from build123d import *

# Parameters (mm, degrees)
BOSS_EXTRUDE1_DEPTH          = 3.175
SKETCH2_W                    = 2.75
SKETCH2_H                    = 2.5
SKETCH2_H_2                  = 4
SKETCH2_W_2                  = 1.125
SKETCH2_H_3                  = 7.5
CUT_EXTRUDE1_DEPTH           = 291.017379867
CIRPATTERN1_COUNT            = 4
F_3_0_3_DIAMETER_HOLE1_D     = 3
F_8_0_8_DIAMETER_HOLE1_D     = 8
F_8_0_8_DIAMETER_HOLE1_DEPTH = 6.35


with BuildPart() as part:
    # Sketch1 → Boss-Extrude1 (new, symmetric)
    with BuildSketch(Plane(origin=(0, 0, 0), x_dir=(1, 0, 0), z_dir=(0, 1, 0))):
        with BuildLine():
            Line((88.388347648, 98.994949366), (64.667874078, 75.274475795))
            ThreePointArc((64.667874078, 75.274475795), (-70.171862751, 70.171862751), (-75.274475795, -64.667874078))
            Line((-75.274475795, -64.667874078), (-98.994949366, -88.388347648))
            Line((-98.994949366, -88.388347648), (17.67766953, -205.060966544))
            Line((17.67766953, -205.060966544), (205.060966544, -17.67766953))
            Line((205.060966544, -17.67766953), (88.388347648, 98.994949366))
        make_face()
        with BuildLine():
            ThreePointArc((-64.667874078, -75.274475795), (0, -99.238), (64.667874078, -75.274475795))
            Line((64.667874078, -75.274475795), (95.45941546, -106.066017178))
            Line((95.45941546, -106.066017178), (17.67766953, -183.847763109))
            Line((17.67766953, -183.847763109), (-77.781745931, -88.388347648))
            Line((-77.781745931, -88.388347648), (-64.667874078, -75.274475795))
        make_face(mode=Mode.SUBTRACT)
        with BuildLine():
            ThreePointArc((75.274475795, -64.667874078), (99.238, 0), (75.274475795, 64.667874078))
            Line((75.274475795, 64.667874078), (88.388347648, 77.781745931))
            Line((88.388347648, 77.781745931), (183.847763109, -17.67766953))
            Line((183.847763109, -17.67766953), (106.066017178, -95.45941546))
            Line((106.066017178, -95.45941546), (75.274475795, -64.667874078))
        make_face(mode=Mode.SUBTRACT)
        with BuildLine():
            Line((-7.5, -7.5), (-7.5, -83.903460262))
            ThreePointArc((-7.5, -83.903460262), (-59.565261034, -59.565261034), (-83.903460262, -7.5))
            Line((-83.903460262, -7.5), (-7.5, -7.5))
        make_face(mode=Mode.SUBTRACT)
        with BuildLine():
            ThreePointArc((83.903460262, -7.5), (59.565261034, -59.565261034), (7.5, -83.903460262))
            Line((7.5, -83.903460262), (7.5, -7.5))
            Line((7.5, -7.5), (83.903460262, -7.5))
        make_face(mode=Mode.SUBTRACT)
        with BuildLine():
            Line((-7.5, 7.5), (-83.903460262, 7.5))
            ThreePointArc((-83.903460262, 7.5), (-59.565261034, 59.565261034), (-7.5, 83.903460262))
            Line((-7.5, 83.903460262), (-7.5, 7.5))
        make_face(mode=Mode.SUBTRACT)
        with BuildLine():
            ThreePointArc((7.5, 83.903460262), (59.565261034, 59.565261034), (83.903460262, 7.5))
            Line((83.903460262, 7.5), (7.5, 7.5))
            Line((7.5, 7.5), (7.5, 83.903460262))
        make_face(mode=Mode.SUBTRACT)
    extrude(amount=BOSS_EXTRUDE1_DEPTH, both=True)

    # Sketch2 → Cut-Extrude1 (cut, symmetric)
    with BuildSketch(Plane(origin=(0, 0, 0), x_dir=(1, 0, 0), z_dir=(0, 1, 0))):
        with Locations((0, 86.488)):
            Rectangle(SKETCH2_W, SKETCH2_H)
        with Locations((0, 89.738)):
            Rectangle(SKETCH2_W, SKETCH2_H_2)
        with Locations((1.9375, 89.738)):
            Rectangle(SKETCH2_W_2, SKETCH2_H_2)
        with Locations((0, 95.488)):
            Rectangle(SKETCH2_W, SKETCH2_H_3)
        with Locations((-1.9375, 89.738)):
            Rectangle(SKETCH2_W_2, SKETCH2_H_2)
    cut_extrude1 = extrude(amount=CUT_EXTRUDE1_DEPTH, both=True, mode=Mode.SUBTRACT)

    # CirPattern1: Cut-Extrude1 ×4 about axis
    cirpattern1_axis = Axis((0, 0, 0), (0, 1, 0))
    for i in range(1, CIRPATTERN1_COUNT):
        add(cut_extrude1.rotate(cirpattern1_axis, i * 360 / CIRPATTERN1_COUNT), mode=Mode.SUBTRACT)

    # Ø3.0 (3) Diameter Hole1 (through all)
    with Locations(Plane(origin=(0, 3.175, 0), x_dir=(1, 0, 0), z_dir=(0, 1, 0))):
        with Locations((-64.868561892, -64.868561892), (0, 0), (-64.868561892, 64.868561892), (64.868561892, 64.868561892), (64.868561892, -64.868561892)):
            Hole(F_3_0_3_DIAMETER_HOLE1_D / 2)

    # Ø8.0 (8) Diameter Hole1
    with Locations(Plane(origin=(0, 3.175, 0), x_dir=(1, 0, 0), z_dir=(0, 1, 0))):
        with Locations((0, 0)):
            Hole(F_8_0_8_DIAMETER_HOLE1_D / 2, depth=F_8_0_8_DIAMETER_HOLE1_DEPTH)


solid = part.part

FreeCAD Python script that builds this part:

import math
import FreeCAD as App
import Part
import Sketcher

V = App.Vector

doc = App.newDocument("Part")
body = doc.addObject("PartDesign::Body", "Body")

# Sketch on XZ plane
sketch1 = doc.addObject("Sketcher::SketchObject", "Sketch")
body.addObject(sketch1)
sketch1.AttachmentSupport = (doc.XZ_Plane, [""])
sketch1.MapMode = "FlatFace"
sketch1.addGeometry([
    Part.LineSegment(V(88, -99, 0), V(65, -75, 0)),  # 0
    Part.ArcOfCircle(Part.Circle(V(0, 0, 0), V(0, 0, 1), 99), math.radians(139), math.radians(311)),  # 1
    Part.LineSegment(V(-75, 65, 0), V(-99, 88, 0)),  # 2
    Part.LineSegment(V(-99, 88, 0), V(18, 205, 0)),  # 3
    Part.LineSegment(V(18, 205, 0), V(205, 18, 0)),  # 4
    Part.LineSegment(V(205, 18, 0), V(88, -99, 0)),  # 5
    Part.LineSegment(V(-78, 88, 0), V(-65, 75, 0)),  # 6
    Part.ArcOfCircle(Part.Circle(V(0, 0, 0), V(0, 0, 1), 99), math.radians(49), math.radians(131)),  # 7
    Part.LineSegment(V(65, 75, 0), V(95, 106, 0)),  # 8
    Part.LineSegment(V(95, 106, 0), V(18, 184, 0)),  # 9
    Part.LineSegment(V(18, 184, 0), V(-78, 88, 0)),  # 10
    Part.LineSegment(V(-84, 8, 0), V(-8, 8, 0)),  # 11
    Part.LineSegment(V(-8, 8, 0), V(-8, 84, 0)),  # 12
    Part.ArcOfCircle(Part.Circle(V(0, 0, 0), V(0, 0, 1), 84), math.radians(95), math.radians(175)),  # 13
    Part.LineSegment(V(8, 8, 0), V(84, 8, 0)),  # 14
    Part.ArcOfCircle(Part.Circle(V(0, 0, 0), V(0, 0, 1), 84), math.radians(5), math.radians(85)),  # 15
    Part.LineSegment(V(8, 84, 0), V(8, 8, 0)),  # 16
    Part.LineSegment(V(-8, -84, 0), V(-8, -8, 0)),  # 17
    Part.LineSegment(V(-8, -8, 0), V(-84, -8, 0)),  # 18
    Part.ArcOfCircle(Part.Circle(V(0, 0, 0), V(0, 0, 1), 84), math.radians(-175), math.radians(-95)),  # 19
    Part.LineSegment(V(8, -8, 0), V(8, -84, 0)),  # 20
    Part.ArcOfCircle(Part.Circle(V(0, 0, 0), V(0, 0, 1), 84), math.radians(-85), math.radians(-5)),  # 21
    Part.LineSegment(V(84, -8, 0), V(8, -8, 0)),  # 22
    Part.LineSegment(V(106, 95, 0), V(75, 65, 0)),  # 23
    Part.ArcOfCircle(Part.Circle(V(0, 0, 0), V(0, 0, 1), 99), math.radians(-41), math.radians(41)),  # 24
    Part.LineSegment(V(75, -65, 0), V(88, -78, 0)),  # 25
    Part.LineSegment(V(88, -78, 0), V(184, 18, 0)),  # 26
    Part.LineSegment(V(184, 18, 0), V(106, 95, 0)),  # 27
], False)
sketch1.addConstraint([
    Sketcher.Constraint("Coincident", 0, 2, 1, 2),
    Sketcher.Constraint("Coincident", 1, 1, 2, 1),
    Sketcher.Constraint("Coincident", 2, 2, 3, 1),
    Sketcher.Constraint("Coincident", 3, 2, 4, 1),
    Sketcher.Constraint("Coincident", 4, 2, 5, 1),
    Sketcher.Constraint("Coincident", 5, 2, 0, 1),
    Sketcher.Constraint("Coincident", 6, 2, 7, 2),
    Sketcher.Constraint("Coincident", 7, 1, 8, 1),
    Sketcher.Constraint("Coincident", 8, 2, 9, 1),
    Sketcher.Constraint("Coincident", 9, 2, 10, 1),
    Sketcher.Constraint("Coincident", 10, 2, 6, 1),
    Sketcher.Constraint("Coincident", 11, 2, 12, 1),
    Sketcher.Constraint("Coincident", 12, 2, 13, 1),
    Sketcher.Constraint("Coincident", 13, 2, 11, 1),
    Sketcher.Constraint("Coincident", 14, 2, 15, 1),
    Sketcher.Constraint("Coincident", 15, 2, 16, 1),
    Sketcher.Constraint("Coincident", 16, 2, 14, 1),
    Sketcher.Constraint("Coincident", 17, 2, 18, 1),
    Sketcher.Constraint("Coincident", 18, 2, 19, 1),
    Sketcher.Constraint("Coincident", 19, 2, 17, 1),
    Sketcher.Constraint("Coincident", 20, 2, 21, 1),
    Sketcher.Constraint("Coincident", 21, 2, 22, 1),
    Sketcher.Constraint("Coincident", 22, 2, 20, 1),
    Sketcher.Constraint("Coincident", 23, 2, 24, 2),
    Sketcher.Constraint("Coincident", 24, 1, 25, 1),
    Sketcher.Constraint("Coincident", 25, 2, 26, 1),
    Sketcher.Constraint("Coincident", 26, 2, 27, 1),
    Sketcher.Constraint("Coincident", 27, 2, 23, 1),
    Sketcher.Constraint("Horizontal", 11),
    Sketcher.Constraint("Vertical", 12),
    Sketcher.Constraint("Horizontal", 14),
    Sketcher.Constraint("Vertical", 16),
    Sketcher.Constraint("Vertical", 17),
    Sketcher.Constraint("Horizontal", 18),
    Sketcher.Constraint("Vertical", 20),
    Sketcher.Constraint("Horizontal", 22),
    Sketcher.Constraint("Coincident", 1, 3, -1, 1),
    Sketcher.Constraint("Coincident", 7, 3, -1, 1),
    Sketcher.Constraint("Coincident", 13, 3, -1, 1),
    Sketcher.Constraint("Coincident", 15, 3, -1, 1),
    Sketcher.Constraint("Coincident", 19, 3, -1, 1),
    Sketcher.Constraint("Coincident", 21, 3, -1, 1),
    Sketcher.Constraint("Coincident", 24, 3, -1, 1),
    Sketcher.Constraint("Equal", 1, 7),
    Sketcher.Constraint("Equal", 13, 15),
    Sketcher.Constraint("Equal", 15, 19),
    Sketcher.Constraint("Equal", 19, 21),
    Sketcher.Constraint("Equal", 7, 24),
    Sketcher.Constraint("Symmetric", 16, 2, 17, 2, -1, 1),
    Sketcher.Constraint("Symmetric", 11, 2, 22, 2, -1, 1),
    Sketcher.Constraint("Symmetric", 11, 2, 16, 2, -2),
    Sketcher.Constraint("Parallel", 0, 2),
    Sketcher.Constraint("Perpendicular", 2, 3),
    Sketcher.Constraint("Perpendicular", 3, 4),
    Sketcher.Constraint("Perpendicular", 4, 5),
    Sketcher.Constraint("Perpendicular", 5, 6),
    Sketcher.Constraint("Perpendicular", 6, 8),
    Sketcher.Constraint("Perpendicular", 8, 9),
    Sketcher.Constraint("Perpendicular", 9, 10),
    Sketcher.Constraint("Parallel", 10, 23),
    Sketcher.Constraint("Perpendicular", 23, 25),
    Sketcher.Constraint("Perpendicular", 25, 26),
    Sketcher.Constraint("Perpendicular", 26, 27),
    Sketcher.Constraint("Horizontal", 6, 2, 7, 1),
    Sketcher.Constraint("Horizontal", 2, 2, 10, 2),
    Sketcher.Constraint("Horizontal", 1, 1, 23, 2),
    Sketcher.Constraint("Horizontal", 4, 2, 26, 2),
    Sketcher.Constraint("Vertical", 0, 2, 7, 1),
    Sketcher.Constraint("Vertical", 3, 2, 9, 2),
    Sketcher.Constraint("Vertical", 23, 2, 24, 1),
    Sketcher.Constraint("Vertical", 5, 2, 25, 2),
    Sketcher.Constraint("Equal", 22, 12),
    Sketcher.Constraint("Equal", 0, 2),
    Sketcher.Constraint("Equal", 3, 5),
    Sketcher.Constraint("Equal", 8, 23),
    Sketcher.Constraint("Distance", 3, 165.0),
    Sketcher.Constraint("Distance", 4, 265.0),
    Sketcher.Constraint("Distance", 9, 110.0),
    Sketcher.Constraint("Radius", 1, 99.238),
    Sketcher.Constraint("Radius", 13, 84.238),
    Sketcher.Constraint("DistanceX", 12, 2, 15, 2, 15.0),
])
pad1 = doc.addObject("PartDesign::Pad", "Pad")
body.addObject(pad1)
pad1.Profile = sketch1
pad1.Length = 6.35
pad1.Midplane = True

# Sketch on XZ plane
sketch2 = doc.addObject("Sketcher::SketchObject", "Sketch001")
body.addObject(sketch2)
sketch2.AttachmentSupport = (doc.XZ_Plane, [""])
sketch2.MapMode = "FlatFace"
sketch2.addGeometry([
    Part.LineSegment(V(-1.4, -85.2, 0), V(1.4, -85.2, 0)),  # 0
    Part.LineSegment(V(1.4, -85.2, 0), V(1.4, -87.7, 0)),  # 1
    Part.LineSegment(V(1.4, -87.7, 0), V(2.5, -87.7, 0)),  # 2
    Part.LineSegment(V(2.5, -87.7, 0), V(2.5, -91.7, 0)),  # 3
    Part.LineSegment(V(2.5, -91.7, 0), V(1.4, -91.7, 0)),  # 4
    Part.LineSegment(V(1.4, -91.7, 0), V(1.4, -99.2, 0)),  # 5
    Part.LineSegment(V(1.4, -99.2, 0), V(-1.4, -99.2, 0)),  # 6
    Part.LineSegment(V(-1.4, -99.2, 0), V(-1.4, -91.7, 0)),  # 7
    Part.LineSegment(V(-1.4, -91.7, 0), V(-2.5, -91.7, 0)),  # 8
    Part.LineSegment(V(-2.5, -91.7, 0), V(-2.5, -87.7, 0)),  # 9
    Part.LineSegment(V(-2.5, -87.7, 0), V(-1.4, -87.7, 0)),  # 10
    Part.LineSegment(V(-1.4, -87.7, 0), V(-1.4, -85.2, 0)),  # 11
], False)
sketch2.addConstraint([
    Sketcher.Constraint("Coincident", 0, 2, 1, 1),
    Sketcher.Constraint("Coincident", 1, 2, 2, 1),
    Sketcher.Constraint("Coincident", 2, 2, 3, 1),
    Sketcher.Constraint("Coincident", 3, 2, 4, 1),
    Sketcher.Constraint("Coincident", 4, 2, 5, 1),
    Sketcher.Constraint("Coincident", 5, 2, 6, 1),
    Sketcher.Constraint("Coincident", 6, 2, 7, 1),
    Sketcher.Constraint("Coincident", 7, 2, 8, 1),
    Sketcher.Constraint("Coincident", 8, 2, 9, 1),
    Sketcher.Constraint("Coincident", 9, 2, 10, 1),
    Sketcher.Constraint("Coincident", 10, 2, 11, 1),
    Sketcher.Constraint("Coincident", 11, 2, 0, 1),
    Sketcher.Constraint("Horizontal", 0),
    Sketcher.Constraint("Vertical", 1),
    Sketcher.Constraint("Horizontal", 2),
    Sketcher.Constraint("Vertical", 3),
    Sketcher.Constraint("Horizontal", 4),
    Sketcher.Constraint("Vertical", 5),
    Sketcher.Constraint("Horizontal", 6),
    Sketcher.Constraint("Vertical", 7),
    Sketcher.Constraint("Horizontal", 8),
    Sketcher.Constraint("Vertical", 9),
    Sketcher.Constraint("Horizontal", 10),
    Sketcher.Constraint("Vertical", 11),
    Sketcher.Constraint("Symmetric", 4, 2, 7, 2, -2),
    Sketcher.Constraint("Symmetric", 2, 2, 9, 2, -2),
    Sketcher.Constraint("Vertical", 1, 2, 4, 2),
    Sketcher.Constraint("Vertical", 7, 2, 10, 2),
    Sketcher.Constraint("DistanceY", 3, 2, 3, 1, 4.0),
    Sketcher.Constraint("DistanceY", 1, 2, 1, 1, 2.5),
    Sketcher.Constraint("DistanceY", 5, 2, 5, 1, 7.5),
    Sketcher.Constraint("DistanceX", 8, 2, 3, 2, 5.0),
    Sketcher.Constraint("DistanceX", 0, 1, 0, 2, 2.75),
    Sketcher.Constraint("DistanceY", 0, 2, -1, 1, 85.238),
])
pocket1 = doc.addObject("PartDesign::Pocket", "Pocket")
body.addObject(pocket1)
pocket1.Profile = sketch2
pocket1.Length = 582.03476
pocket1.Midplane = True
doc.recompute()

polarpattern = doc.addObject("PartDesign::PolarPattern", "PolarPattern")
body.addObject(polarpattern)
polarpattern.Originals = [pocket1]
polarpattern.Axis = (doc.Y_Axis, [""])
polarpattern.Angle = 360
polarpattern.Occurrences = 4
body.Tip = polarpattern

# Sketch on XZ plane
sketch3 = doc.addObject("Sketcher::SketchObject", "Sketch002")
body.addObject(sketch3)
sketch3.AttachmentSupport = (doc.XZ_Plane, [""])
sketch3.MapMode = "FlatFace"
sketch3.AttachmentOffset = App.Placement(V(0, 0, -3.175), App.Rotation())
sketch3.addGeometry([
    Part.Circle(V(-64.9, 64.9, 0), V(0, 0, 1), 1.5),  # 0
    Part.Circle(V(0, 0, 0), V(0, 0, 1), 1.5),  # 1
    Part.Circle(V(-64.9, -64.9, 0), V(0, 0, 1), 1.5),  # 2
    Part.Circle(V(64.9, -64.9, 0), V(0, 0, 1), 1.5),  # 3
    Part.Circle(V(64.9, 64.9, 0), V(0, 0, 1), 1.5),  # 4
], False)
sketch3.addConstraint([
    Sketcher.Constraint("Coincident", 1, 3, -1, 1),
    Sketcher.Constraint("Equal", 0, 1),
    Sketcher.Constraint("Equal", 1, 2),
    Sketcher.Constraint("Equal", 2, 3),
    Sketcher.Constraint("Equal", 3, 4),
    Sketcher.Constraint("Symmetric", 0, 3, 3, 3, -1, 1),
    Sketcher.Constraint("Symmetric", 2, 3, 4, 3, -1, 1),
    Sketcher.Constraint("Symmetric", 2, 3, 3, 3, -2),
    Sketcher.Constraint("Diameter", 0, 3.0),
    Sketcher.Constraint("DistanceX", 0, 3, -1, 1, 64.868562),
    Sketcher.Constraint("DistanceY", -1, 1, 0, 3, 64.868562),
])
doc.recompute()
hole = doc.addObject("PartDesign::Hole", "Hole")
body.addObject(hole)
hole.Profile = sketch3
hole.ThreadType = "None"
hole.Diameter = 3
hole.DepthType = "ThroughAll"
hole.Reversed = True

# Sketch on XZ plane
sketch4 = doc.addObject("Sketcher::SketchObject", "Sketch003")
body.addObject(sketch4)
sketch4.AttachmentSupport = (doc.XZ_Plane, [""])
sketch4.MapMode = "FlatFace"
sketch4.AttachmentOffset = App.Placement(V(0, 0, -3.175), App.Rotation())
sketch4.addGeometry(Part.Circle(V(0, 0, 0), V(0, 0, 1), 4), False)
sketch4.addConstraint([
    Sketcher.Constraint("Coincident", 0, 3, -1, 1),
    Sketcher.Constraint("Diameter", 0, 8.0),
])
doc.recompute()
hole2 = doc.addObject("PartDesign::Hole", "Hole001")
body.addObject(hole2)
hole2.Profile = sketch4
hole2.ThreadType = "None"
hole2.Diameter = 8
hole2.DepthType = "Dimension"
hole2.Depth = 6.35
hole2.DrillPoint = "Flat"
hole2.Reversed = True

doc.recompute()
